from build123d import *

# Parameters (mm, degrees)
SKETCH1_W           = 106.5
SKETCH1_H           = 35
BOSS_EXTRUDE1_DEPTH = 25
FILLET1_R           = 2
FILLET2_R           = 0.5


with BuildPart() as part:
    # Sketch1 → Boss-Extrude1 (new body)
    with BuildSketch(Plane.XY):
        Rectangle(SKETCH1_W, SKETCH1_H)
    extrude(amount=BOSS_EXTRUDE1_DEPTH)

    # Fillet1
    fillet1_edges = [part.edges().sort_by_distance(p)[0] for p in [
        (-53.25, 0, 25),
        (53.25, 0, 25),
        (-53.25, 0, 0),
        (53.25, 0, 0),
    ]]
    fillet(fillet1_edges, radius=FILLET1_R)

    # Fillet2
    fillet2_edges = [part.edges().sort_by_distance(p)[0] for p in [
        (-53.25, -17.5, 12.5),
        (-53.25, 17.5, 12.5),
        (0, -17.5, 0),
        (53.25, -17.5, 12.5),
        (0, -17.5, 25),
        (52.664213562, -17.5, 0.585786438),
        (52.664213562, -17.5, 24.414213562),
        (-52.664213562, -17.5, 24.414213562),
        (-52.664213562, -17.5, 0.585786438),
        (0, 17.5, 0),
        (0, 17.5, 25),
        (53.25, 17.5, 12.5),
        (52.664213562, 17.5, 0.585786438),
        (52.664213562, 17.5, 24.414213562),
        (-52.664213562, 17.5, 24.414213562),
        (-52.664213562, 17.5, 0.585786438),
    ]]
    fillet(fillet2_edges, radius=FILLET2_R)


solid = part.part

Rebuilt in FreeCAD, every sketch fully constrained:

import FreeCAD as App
import Part
import Sketcher
from FreeCAD import Vector
Q = App.Units.Quantity


def edges_at(feature, points):
    """Names of the edges that pass closest to the given points."""
    edges = feature.Shape.Edges
    near = lambda p: min(range(len(edges)), key=lambda i: edges[i].distToShape(Part.Vertex(*p))[0])
    return sorted({f"Edge{near(p) + 1}" for p in points})


def add_polygon(sketch, points):
    """Adds a closed chain of lines whose ends are joined by coincident constraints."""
    first, n = sketch.GeometryCount, len(points)
    for a, b in zip(points, points[1:] + points[:1]):
        sketch.addGeometry(Part.LineSegment(App.Vector(*a, 0), App.Vector(*b, 0)), False)
    for i in range(n):
        sketch.addConstraint(Sketcher.Constraint("Coincident", first + i, 2, first + (i + 1) % n, 1))

doc = App.newDocument("Part")
body = doc.addObject("PartDesign::Body", "Body")

sketch1 = body.newObject("Sketcher::SketchObject", "Sketch")
sketch1.AttachmentSupport = (doc.getObject("XY_Plane"), [""])
sketch1.MapMode = "FlatFace"
add_polygon(sketch1, [(-53, 18), (-53, -18), (53, -18), (53, 18)])
sketch1.addConstraint(Sketcher.Constraint("Vertical", 0))
sketch1.addConstraint(Sketcher.Constraint("Horizontal", 1))
sketch1.addConstraint(Sketcher.Constraint("Vertical", 2))
sketch1.addConstraint(Sketcher.Constraint("Horizontal", 3))
sketch1.addConstraint(Sketcher.Constraint("Symmetric", 0, 2, 2, 2, -1, 1))
sketch1.addConstraint(Sketcher.Constraint("DistanceY", 0, 2, 0, 1, Q("35 mm")))
sketch1.addConstraint(Sketcher.Constraint("DistanceX", 1, 1, 1, 2, Q("106.5 mm")))
pad1 = body.newObject("PartDesign::Pad", "Pad")
pad1.Profile = sketch1
pad1.Length = 25
doc.recompute()

fillet = body.newObject("PartDesign::Fillet", "Fillet")
fillet.Base = (pad1, edges_at(pad1, [
    (-53.25, 0, 25),
    (53.25, 0, 25),
    (-53.25, 0, 0),
    (53.25, 0, 0),
]))
fillet.Radius = 2
doc.recompute()

fillet2 = body.newObject("PartDesign::Fillet", "Fillet001")
fillet2.Base = (fillet, edges_at(fillet, [
    (-53.25, -17.5, 12.5),
    (-53.25, 17.5, 12.5),
    (0, -17.5, 0),
    (53.25, -17.5, 12.5),
    (0, -17.5, 25),
    (52.664, -17.5, 0.586),
    (52.664, -17.5, 24.414),
    (-52.664, -17.5, 24.414),
    (-52.664, -17.5, 0.586),
    (0, 17.5, 0),
    (0, 17.5, 25),
    (53.25, 17.5, 12.5),
    (52.664, 17.5, 0.586),
    (52.664, 17.5, 24.414),
    (-52.664, 17.5, 24.414),
    (-52.664, 17.5, 0.586),
]))
fillet2.Radius = 0.5

doc.recompute()
